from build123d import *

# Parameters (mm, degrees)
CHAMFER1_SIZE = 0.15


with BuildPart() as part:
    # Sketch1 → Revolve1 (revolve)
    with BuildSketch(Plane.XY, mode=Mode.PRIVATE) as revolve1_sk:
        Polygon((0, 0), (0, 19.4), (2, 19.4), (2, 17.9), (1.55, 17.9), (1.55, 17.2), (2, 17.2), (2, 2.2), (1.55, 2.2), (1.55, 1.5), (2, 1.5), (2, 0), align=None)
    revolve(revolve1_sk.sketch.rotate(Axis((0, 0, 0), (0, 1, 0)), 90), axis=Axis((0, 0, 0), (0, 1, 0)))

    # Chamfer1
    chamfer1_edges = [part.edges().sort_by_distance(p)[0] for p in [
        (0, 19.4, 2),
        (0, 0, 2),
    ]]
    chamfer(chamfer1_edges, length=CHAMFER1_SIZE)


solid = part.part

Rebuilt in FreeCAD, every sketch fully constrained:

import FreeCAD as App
import Part
import Sketcher
from FreeCAD import Vector


def edges_at(feature, points):
    """Names of the edges that pass closest to the given points."""
    edges = feature.Shape.Edges
    near = lambda p: min(range(len(edges)), key=lambda i: edges[i].distToShape(Part.Vertex(*p))[0])
    return sorted({f"Edge{near(p) + 1}" for p in points})


def add_polygon(sketch, points):
    """Adds a closed chain of lines whose ends are joined by coincident constraints."""
    first, n = sketch.GeometryCount, len(points)
    for a, b in zip(points, points[1:] + points[:1]):
        sketch.addGeometry(Part.LineSegment(App.Vector(*a, 0), App.Vector(*b, 0)), False)
    for i in range(n):
        sketch.addConstraint(Sketcher.Constraint("Coincident", first + i, 2, first + (i + 1) % n, 1))

doc = App.newDocument("Part")
body = doc.addObject("PartDesign::Body", "Body")

# Sketch on XY plane
sketch1 = body.newObject("Sketcher::SketchObject", "Sketch")
sketch1.AttachmentSupport = (doc.getObject("XY_Plane"), [""])
sketch1.MapMode = "FlatFace"
add_polygon(sketch1, [(0, 19.4), (0, 0), (2, 0), (2, 1.5), (1.55, 1.5), (1.55, 2.2), (2, 2.2), (2, 17.2), (1.55, 17.2), (1.55, 17.9), (2, 17.9), (2, 19.4)])  # lines 0-11
sketch1.addConstraint([
    Sketcher.Constraint("Vertical", 0),
    Sketcher.Constraint("Horizontal", 1),
    Sketcher.Constraint("Vertical", 2),
    Sketcher.Constraint("Horizontal", 3),
    Sketcher.Constraint("Vertical", 4),
    Sketcher.Constraint("Horizontal", 5),
    Sketcher.Constraint("Vertical", 6),
    Sketcher.Constraint("Horizontal", 7),
    Sketcher.Constraint("Vertical", 8),
    Sketcher.Constraint("Horizontal", 9),
    Sketcher.Constraint("Vertical", 10),
    Sketcher.Constraint("Horizontal", 11),
    Sketcher.Constraint("Coincident", 0, 2, -1, 1),
    Sketcher.Constraint("Vertical", 2, 2, 5, 2),
    Sketcher.Constraint("Vertical", 4, 2, 7, 2),
    Sketcher.Constraint("Vertical", 6, 2, 9, 2),
    Sketcher.Constraint("Equal", 4, 8),
    Sketcher.Constraint("Equal", 2, 10),
    Sketcher.Constraint("DistanceX", 1, 1, 1, 2, 2.0),
    Sketcher.Constraint("DistanceY", 6, 1, 6, 2, 15.0),
    Sketcher.Constraint("DistanceY", 0, 2, 0, 1, 19.4),
    Sketcher.Constraint("DistanceY", 2, 1, 2, 2, 1.5),
    Sketcher.Constraint("DistanceX", 3, 2, 3, 1, 0.45),
])
revolution = body.newObject("PartDesign::Revolution", "Revolution")
revolution.Profile = sketch1
revolution.ReferenceAxis = (sketch1, ["V_Axis"])
revolution.Angle = 360
doc.recompute()

chamfer = body.newObject("PartDesign::Chamfer", "Chamfer")
chamfer.Base = (revolution, edges_at(revolution, [(0, 19.4, 2), (0, 0, 2)]))
chamfer.Size = 0.15

doc.recompute()
